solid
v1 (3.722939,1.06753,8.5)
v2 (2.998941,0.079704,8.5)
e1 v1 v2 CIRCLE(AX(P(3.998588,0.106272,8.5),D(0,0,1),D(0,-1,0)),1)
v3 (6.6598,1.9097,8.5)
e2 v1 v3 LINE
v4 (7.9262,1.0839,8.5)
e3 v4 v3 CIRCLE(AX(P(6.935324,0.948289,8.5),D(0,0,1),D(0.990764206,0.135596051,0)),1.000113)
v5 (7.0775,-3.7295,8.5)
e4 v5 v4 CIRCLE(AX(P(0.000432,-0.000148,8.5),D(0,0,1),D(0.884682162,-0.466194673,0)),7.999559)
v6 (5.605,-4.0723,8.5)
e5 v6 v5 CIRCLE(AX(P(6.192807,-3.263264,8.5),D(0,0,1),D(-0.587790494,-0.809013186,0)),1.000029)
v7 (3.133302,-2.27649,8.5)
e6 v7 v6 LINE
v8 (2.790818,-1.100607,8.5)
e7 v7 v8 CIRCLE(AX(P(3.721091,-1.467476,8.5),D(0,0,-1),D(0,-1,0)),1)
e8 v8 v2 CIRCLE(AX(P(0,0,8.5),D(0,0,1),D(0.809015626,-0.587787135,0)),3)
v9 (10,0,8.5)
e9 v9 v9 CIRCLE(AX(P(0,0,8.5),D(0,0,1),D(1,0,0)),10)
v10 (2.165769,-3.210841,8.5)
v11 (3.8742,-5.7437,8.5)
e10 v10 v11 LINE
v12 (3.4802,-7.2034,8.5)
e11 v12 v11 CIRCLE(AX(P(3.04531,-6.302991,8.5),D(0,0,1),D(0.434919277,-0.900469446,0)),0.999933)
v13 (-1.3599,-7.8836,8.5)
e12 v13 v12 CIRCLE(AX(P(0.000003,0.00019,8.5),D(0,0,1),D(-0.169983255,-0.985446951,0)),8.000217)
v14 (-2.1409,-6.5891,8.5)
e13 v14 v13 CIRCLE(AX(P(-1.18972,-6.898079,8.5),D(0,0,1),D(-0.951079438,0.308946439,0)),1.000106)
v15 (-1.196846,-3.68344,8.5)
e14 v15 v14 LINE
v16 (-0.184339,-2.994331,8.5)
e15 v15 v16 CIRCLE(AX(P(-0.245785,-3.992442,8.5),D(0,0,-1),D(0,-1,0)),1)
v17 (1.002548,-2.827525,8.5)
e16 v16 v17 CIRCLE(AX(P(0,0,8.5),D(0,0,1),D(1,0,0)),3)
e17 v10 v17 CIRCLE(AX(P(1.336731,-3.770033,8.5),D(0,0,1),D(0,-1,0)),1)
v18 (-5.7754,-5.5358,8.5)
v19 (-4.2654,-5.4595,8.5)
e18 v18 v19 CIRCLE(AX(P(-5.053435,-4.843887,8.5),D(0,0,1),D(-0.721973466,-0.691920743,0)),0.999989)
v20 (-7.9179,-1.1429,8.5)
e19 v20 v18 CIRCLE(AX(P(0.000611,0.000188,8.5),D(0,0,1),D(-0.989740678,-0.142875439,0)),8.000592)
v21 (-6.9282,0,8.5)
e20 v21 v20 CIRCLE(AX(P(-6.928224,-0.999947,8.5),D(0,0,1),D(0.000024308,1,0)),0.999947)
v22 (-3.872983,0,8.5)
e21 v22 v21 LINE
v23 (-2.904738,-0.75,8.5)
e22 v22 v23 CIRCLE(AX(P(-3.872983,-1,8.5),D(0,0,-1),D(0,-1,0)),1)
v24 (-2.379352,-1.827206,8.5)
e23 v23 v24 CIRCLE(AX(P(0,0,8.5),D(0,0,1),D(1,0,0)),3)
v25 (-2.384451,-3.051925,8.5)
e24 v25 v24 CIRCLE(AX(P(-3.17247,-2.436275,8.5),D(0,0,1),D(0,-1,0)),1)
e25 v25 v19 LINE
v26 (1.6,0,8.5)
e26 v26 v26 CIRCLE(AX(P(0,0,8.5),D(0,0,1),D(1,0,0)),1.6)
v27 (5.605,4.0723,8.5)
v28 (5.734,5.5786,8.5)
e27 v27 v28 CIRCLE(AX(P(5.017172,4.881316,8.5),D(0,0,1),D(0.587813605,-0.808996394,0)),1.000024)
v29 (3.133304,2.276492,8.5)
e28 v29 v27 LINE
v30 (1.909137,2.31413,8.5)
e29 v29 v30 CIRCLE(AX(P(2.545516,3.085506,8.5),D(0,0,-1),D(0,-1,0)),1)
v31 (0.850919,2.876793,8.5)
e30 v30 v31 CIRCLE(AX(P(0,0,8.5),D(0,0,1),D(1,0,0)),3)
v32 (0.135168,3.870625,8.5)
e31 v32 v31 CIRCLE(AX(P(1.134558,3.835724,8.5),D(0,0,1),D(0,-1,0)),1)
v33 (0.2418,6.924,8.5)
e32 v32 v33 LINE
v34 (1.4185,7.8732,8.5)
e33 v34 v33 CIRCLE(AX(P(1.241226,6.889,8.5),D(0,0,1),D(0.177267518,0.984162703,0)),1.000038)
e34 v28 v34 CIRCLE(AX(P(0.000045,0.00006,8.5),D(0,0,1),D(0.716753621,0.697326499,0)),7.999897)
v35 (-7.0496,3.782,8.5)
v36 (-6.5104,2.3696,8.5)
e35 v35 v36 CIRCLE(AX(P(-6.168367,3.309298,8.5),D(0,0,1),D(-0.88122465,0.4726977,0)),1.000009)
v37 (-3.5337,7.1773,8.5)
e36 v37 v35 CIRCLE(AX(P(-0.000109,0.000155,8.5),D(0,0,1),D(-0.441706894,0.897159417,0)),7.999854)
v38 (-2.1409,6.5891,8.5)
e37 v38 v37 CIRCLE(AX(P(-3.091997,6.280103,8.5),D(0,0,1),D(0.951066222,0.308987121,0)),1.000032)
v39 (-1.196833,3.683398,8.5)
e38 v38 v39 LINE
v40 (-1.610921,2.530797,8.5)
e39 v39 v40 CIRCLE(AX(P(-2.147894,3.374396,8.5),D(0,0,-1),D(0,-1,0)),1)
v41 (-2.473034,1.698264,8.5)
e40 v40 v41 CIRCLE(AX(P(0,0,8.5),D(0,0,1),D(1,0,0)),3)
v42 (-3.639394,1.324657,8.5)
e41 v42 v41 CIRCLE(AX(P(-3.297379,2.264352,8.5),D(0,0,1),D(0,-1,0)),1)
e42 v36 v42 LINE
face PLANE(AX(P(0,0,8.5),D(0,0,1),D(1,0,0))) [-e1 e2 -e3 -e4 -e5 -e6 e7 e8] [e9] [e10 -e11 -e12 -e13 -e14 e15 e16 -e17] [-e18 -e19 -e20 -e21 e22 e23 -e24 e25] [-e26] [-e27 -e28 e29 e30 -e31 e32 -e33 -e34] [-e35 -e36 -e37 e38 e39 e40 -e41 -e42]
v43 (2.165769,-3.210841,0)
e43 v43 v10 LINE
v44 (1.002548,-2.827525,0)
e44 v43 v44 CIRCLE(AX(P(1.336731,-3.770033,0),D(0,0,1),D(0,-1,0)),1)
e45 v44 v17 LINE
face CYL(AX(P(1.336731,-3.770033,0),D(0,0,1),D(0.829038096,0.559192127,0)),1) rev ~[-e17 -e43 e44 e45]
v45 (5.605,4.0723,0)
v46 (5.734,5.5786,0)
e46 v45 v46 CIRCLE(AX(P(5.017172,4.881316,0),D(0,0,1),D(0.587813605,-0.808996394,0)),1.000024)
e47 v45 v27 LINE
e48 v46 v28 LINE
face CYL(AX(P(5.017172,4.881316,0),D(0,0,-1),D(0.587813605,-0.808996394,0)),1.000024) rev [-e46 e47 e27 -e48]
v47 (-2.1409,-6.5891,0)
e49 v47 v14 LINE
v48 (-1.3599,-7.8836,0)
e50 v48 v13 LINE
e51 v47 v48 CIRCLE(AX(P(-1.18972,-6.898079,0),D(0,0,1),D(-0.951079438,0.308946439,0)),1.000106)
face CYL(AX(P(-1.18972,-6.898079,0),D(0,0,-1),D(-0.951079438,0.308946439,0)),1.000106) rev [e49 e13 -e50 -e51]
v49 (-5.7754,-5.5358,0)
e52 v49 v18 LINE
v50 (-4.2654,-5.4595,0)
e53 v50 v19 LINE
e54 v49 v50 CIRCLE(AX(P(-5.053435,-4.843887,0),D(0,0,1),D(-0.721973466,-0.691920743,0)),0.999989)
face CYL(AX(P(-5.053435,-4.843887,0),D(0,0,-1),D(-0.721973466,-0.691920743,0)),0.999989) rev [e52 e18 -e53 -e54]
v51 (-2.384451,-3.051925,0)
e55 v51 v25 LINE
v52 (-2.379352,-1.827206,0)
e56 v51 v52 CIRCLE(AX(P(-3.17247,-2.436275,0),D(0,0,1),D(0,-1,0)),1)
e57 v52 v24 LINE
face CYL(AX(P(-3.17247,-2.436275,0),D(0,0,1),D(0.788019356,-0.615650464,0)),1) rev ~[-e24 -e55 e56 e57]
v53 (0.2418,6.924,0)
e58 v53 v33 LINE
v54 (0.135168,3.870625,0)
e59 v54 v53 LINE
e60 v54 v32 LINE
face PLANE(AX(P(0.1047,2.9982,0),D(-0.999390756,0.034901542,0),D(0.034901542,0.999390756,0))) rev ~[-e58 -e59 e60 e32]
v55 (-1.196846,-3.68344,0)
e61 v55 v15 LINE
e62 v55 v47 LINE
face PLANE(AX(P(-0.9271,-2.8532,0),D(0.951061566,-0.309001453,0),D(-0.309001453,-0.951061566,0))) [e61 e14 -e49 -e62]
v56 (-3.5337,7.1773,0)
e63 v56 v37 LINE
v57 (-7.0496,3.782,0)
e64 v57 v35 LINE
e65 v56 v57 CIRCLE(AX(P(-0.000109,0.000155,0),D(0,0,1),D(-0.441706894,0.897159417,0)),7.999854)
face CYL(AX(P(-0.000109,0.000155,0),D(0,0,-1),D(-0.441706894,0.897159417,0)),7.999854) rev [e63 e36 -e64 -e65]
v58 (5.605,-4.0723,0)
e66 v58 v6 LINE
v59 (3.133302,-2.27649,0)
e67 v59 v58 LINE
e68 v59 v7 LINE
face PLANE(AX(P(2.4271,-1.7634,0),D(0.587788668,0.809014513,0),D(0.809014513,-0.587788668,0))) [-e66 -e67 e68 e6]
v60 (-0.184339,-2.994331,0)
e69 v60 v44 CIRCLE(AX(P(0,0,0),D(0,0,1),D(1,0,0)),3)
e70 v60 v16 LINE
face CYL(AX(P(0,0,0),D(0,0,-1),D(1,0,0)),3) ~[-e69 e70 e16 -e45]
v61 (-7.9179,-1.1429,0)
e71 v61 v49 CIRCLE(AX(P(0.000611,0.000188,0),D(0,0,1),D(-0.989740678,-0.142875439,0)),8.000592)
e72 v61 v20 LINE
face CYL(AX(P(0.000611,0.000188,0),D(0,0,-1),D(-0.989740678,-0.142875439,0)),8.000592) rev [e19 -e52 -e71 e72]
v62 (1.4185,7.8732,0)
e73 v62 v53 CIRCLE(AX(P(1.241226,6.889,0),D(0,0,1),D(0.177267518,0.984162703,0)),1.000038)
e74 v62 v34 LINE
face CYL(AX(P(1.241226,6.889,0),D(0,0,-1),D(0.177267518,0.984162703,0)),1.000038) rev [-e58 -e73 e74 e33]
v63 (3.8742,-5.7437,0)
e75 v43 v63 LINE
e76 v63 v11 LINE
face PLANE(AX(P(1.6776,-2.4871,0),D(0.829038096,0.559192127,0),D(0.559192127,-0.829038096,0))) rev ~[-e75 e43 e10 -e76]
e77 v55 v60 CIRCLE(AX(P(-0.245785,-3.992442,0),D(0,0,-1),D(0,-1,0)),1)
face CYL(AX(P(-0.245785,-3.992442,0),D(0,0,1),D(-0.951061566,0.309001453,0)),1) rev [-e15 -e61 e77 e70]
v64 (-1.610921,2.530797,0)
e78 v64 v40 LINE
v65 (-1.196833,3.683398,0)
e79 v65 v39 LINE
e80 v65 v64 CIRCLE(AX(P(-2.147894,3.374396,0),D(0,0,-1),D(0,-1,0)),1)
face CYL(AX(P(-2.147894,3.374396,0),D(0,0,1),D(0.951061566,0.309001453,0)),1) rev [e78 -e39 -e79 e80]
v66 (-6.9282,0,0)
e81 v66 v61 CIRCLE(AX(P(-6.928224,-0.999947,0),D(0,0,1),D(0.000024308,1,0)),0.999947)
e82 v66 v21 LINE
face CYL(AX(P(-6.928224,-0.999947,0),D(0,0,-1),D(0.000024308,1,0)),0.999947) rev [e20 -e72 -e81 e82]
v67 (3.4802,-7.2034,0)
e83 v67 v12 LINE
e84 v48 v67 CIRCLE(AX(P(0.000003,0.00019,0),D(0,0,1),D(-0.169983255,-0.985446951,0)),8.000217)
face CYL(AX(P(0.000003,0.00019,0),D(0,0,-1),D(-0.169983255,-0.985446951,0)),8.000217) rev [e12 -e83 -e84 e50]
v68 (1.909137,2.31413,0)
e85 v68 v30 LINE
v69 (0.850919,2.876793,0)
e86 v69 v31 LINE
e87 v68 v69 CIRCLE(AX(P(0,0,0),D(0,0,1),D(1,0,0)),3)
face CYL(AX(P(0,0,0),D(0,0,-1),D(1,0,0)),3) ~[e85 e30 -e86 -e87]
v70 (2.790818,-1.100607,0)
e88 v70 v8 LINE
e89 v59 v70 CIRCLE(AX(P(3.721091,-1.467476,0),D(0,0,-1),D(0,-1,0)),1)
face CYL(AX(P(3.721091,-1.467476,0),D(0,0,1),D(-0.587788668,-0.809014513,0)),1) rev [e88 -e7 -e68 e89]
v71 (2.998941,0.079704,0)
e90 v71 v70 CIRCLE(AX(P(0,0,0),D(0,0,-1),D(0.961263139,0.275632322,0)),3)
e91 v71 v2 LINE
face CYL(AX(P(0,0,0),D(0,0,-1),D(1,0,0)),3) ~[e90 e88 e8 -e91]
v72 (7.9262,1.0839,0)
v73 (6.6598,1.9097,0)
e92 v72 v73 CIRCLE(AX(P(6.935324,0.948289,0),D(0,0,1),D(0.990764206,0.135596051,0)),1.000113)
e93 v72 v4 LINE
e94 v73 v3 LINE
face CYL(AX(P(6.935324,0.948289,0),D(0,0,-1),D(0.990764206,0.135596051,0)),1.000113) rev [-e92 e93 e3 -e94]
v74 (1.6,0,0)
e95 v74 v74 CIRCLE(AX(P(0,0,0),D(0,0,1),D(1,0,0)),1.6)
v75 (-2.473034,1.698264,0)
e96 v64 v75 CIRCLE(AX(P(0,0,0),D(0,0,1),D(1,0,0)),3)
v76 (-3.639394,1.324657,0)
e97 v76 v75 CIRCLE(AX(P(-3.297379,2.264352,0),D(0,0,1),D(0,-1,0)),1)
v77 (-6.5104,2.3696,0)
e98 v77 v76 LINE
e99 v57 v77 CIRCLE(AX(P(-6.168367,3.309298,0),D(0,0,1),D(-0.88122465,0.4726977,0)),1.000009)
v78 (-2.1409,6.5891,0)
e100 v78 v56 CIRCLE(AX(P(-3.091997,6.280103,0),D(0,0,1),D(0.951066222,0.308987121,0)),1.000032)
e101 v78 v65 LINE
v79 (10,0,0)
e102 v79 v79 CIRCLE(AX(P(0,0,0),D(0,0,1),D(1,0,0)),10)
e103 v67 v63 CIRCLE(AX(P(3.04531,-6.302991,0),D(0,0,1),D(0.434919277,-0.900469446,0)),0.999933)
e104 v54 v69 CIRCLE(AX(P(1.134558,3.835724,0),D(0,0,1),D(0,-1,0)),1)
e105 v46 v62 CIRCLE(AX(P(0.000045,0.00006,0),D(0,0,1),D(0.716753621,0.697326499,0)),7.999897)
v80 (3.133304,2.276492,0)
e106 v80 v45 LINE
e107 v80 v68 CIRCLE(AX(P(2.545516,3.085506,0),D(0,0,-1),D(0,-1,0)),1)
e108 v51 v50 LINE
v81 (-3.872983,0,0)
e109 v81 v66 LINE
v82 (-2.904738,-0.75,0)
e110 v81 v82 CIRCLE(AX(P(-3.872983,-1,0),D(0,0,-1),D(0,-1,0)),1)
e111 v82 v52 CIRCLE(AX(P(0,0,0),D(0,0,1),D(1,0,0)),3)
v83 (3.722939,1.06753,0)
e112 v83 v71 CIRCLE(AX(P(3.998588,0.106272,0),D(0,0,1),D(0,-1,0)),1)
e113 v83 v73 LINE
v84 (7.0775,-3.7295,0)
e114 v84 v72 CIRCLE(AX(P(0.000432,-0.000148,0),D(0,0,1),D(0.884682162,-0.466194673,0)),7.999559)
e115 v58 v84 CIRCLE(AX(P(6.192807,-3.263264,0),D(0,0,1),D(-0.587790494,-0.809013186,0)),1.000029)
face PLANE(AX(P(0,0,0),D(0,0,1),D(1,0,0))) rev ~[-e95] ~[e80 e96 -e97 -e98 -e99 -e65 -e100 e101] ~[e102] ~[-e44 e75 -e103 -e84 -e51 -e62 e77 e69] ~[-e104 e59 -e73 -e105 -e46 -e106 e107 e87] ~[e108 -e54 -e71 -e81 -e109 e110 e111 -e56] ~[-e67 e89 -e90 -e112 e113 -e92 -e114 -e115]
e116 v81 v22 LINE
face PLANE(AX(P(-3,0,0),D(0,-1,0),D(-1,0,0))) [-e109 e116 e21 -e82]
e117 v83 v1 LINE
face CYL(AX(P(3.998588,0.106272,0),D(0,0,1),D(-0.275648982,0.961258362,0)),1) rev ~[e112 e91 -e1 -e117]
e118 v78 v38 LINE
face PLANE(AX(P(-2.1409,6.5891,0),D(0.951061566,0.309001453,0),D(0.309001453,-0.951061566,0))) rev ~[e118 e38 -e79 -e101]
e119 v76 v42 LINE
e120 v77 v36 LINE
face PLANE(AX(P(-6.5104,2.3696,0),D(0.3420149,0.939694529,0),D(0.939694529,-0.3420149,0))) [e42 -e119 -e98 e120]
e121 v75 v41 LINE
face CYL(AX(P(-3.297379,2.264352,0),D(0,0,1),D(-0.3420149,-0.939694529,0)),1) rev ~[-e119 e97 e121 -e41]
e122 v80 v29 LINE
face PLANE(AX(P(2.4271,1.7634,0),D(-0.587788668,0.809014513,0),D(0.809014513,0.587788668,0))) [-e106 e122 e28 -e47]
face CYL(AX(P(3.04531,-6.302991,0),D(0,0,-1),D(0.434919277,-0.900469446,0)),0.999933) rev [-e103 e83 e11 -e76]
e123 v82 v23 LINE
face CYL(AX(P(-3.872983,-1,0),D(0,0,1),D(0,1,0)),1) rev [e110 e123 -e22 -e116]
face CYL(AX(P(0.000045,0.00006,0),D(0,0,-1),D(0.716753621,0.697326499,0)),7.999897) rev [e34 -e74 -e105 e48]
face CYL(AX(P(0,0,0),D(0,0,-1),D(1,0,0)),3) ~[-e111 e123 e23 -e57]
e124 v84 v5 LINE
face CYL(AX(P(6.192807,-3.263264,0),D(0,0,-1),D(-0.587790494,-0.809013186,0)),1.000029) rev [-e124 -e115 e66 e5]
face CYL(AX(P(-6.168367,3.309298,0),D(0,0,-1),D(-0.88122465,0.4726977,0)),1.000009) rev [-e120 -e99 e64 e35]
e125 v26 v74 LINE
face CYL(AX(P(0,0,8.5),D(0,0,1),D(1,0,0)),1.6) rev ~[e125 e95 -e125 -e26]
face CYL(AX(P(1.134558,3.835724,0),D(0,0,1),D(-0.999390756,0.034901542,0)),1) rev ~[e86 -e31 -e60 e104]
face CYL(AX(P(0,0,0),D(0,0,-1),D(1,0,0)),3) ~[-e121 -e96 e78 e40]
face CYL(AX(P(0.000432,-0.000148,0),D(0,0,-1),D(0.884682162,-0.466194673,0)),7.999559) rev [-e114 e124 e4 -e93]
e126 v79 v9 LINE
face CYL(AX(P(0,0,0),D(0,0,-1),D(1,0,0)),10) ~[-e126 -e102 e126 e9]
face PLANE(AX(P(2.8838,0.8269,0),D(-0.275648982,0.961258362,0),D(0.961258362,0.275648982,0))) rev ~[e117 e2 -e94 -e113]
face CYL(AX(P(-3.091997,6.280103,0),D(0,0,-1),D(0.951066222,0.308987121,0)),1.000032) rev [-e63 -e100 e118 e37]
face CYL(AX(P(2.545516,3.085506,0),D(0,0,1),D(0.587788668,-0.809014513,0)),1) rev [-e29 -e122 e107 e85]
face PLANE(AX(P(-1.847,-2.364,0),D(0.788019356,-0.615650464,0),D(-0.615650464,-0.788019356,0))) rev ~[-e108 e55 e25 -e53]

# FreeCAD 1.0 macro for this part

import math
import FreeCAD as App
import Part
import Sketcher
Q = App.Units.Quantity


def edges_at(feature, points):
    """Names of the edges that pass closest to the given points."""
    edges = feature.Shape.Edges
    near = lambda p: min(range(len(edges)), key=lambda i: edges[i].distToShape(Part.Vertex(*p))[0])
    return sorted({f"Edge{near(p) + 1}" for p in points})

doc = App.newDocument("Part")
body = doc.addObject("PartDesign::Body", "Body")

sketch1 = body.newObject("Sketcher::SketchObject", "Sketch")
sketch1.AttachmentSupport = (doc.getObject("XY_Plane"), [""])
sketch1.MapMode = "FlatFace"
sketch1.addGeometry([
    Part.Circle(App.Vector(0, 0, 0), App.Vector(0, 0, 1), 10),
    Part.LineSegment(App.Vector(-2.8191, 1.0261, 0), App.Vector(-6.5104, 2.3696, 0)),
    Part.ArcOfCircle(Part.Circle(App.Vector(-6.1684, 3.3093, 0), App.Vector(0, 0, 1), 0.999979), math.radians(151.789663), math.radians(250.001229)),
    Part.ArcOfCircle(Part.Circle(App.Vector(0, 0, 0), App.Vector(0, 0, 1), 7.99996), math.radians(116.213049), math.radians(151.787139)),
    Part.ArcOfCircle(Part.Circle(App.Vector(-3.092, 6.2801, 0), App.Vector(0, 0, 1), 1.000036), math.radians(17.998304), math.radians(116.211457)),
    Part.LineSegment(App.Vector(-2.1409, 6.5891, 0), App.Vector(-0.9271, 2.8532, 0)),
    Part.ArcOfCircle(Part.Circle(App.Vector(0, 0, 0), App.Vector(0, 0, 1), 3), math.radians(108.000711), math.radians(159.999434)),
    Part.LineSegment(App.Vector(-6.9282, 0, 0), App.Vector(-3, 0, 0)),
    Part.ArcOfCircle(Part.Circle(App.Vector(0, 0, 0), App.Vector(0, 0, 1), 3), math.radians(180), math.radians(231.999386)),
    Part.LineSegment(App.Vector(-1.847, -2.364, 0), App.Vector(-4.2654, -5.4595, 0)),
    Part.ArcOfCircle(Part.Circle(App.Vector(-5.0534, -4.8438, 0), App.Vector(0, 0, 1), 1.000074), math.radians(-136.215428), math.radians(-38.002119)),
    Part.ArcOfCircle(Part.Circle(App.Vector(0, 0, 0), App.Vector(0, 0, 1), 8.000042), math.radians(-171.786438), math.radians(-136.213489)),
    Part.ArcOfCircle(Part.Circle(App.Vector(-6.9282, -1, 0), App.Vector(0, 0, 1), 1), math.radians(90), math.radians(188.215996)),
    Part.LineSegment(App.Vector(-2.1409, -6.5891, 0), App.Vector(-0.9271, -2.8532, 0)),
    Part.ArcOfCircle(Part.Circle(App.Vector(0, 0, 0), App.Vector(0, 0, 1), 3), math.radians(-108.000711), math.radians(-55.999527)),
    Part.LineSegment(App.Vector(1.6776, -2.4871, 0), App.Vector(3.8742, -5.7437, 0)),
    Part.ArcOfCircle(Part.Circle(App.Vector(3.0452, -6.3029, 0), App.Vector(0, 0, 1), 1.000063), math.radians(-64.216439), math.radians(34.001541)),
    Part.ArcOfCircle(Part.Circle(App.Vector(0, 0, 0), App.Vector(0, 0, 1), 8.000042), math.radians(-99.787055), math.radians(-64.21328)),
    Part.ArcOfCircle(Part.Circle(App.Vector(-1.1899, -6.8981, 0), App.Vector(0, 0, 1), 0.999941), math.radians(161.999925), math.radians(260.212726)),
    Part.LineSegment(App.Vector(5.605, -4.0723, 0), App.Vector(2.4271, -1.7634, 0)),
    Part.ArcOfCircle(Part.Circle(App.Vector(0, 0, 0), App.Vector(0, 0, 1), 3), math.radians(-36.000133), math.radians(15.9997)),
    Part.LineSegment(App.Vector(2.8838, 0.8269, 0), App.Vector(6.6598, 1.9097, 0)),
    Part.ArcOfCircle(Part.Circle(App.Vector(6.9355, 0.9484, 0), App.Vector(0, 0, 1), 0.999923), math.radians(7.788134), math.radians(106.002845)),
    Part.ArcOfCircle(Part.Circle(App.Vector(0, 0, 0), App.Vector(0, 0, 1), 7.99996), math.radians(-27.78706), math.radians(7.786842)),
    Part.ArcOfCircle(Part.Circle(App.Vector(6.1928, -3.2633, 0), App.Vector(0, 0, 1), 0.999995), math.radians(-126.001256), math.radians(-27.78736)),
    Part.LineSegment(App.Vector(5.605, 4.0723, 0), App.Vector(2.4271, 1.7634, 0)),
    Part.ArcOfCircle(Part.Circle(App.Vector(0, 0, 0), App.Vector(0, 0, 1), 3), math.radians(36.000133), math.radians(87.99999)),
    Part.LineSegment(App.Vector(0.1047, 2.9982, 0), App.Vector(0.2418, 6.924, 0)),
    Part.ArcOfCircle(Part.Circle(App.Vector(1.2412, 6.8891, 0), App.Vector(0, 0, 1), 0.999944), math.radians(79.786891), math.radians(177.99999)),
    Part.ArcOfCircle(Part.Circle(App.Vector(0, 0, 0), App.Vector(0, 0, 1), 7.99996), math.radians(44.212983), math.radians(79.786694)),
    Part.ArcOfCircle(Part.Circle(App.Vector(5.0172, 4.8813, 0), App.Vector(0, 0, 1), 0.999995), math.radians(-53.998744), math.radians(44.209959)),
    Part.ArcOfCircle(Part.Circle(App.Vector(0, 0, 0), App.Vector(0, 0, 1), 1.000036), math.radians(-36.001256), math.radians(15.997338)),
    Part.ArcOfCircle(Part.Circle(App.Vector(0, 0, 0), App.Vector(0, 0, 1), 1.000036), math.radians(-55.998459), math.radians(-36.001256)),
    Part.ArcOfCircle(Part.Circle(App.Vector(0, 0, 0), App.Vector(0, 0, 1), 0.999973), math.radians(-107.998304), math.radians(-55.998459)),
    Part.ArcOfCircle(Part.Circle(App.Vector(0, 0, 0), App.Vector(0, 0, 1), 1.000036), math.radians(-128.002119), math.radians(-107.998304)),
    Part.ArcOfCircle(Part.Circle(App.Vector(0, 0, 0), App.Vector(0, 0, 1), 1.000036), math.radians(180), math.radians(231.997881)),
    Part.ArcOfCircle(Part.Circle(App.Vector(0, 0, 0), App.Vector(0, 0, 1), 1), math.radians(160.001229), math.radians(180)),
    Part.ArcOfCircle(Part.Circle(App.Vector(0, 0, 0), App.Vector(0, 0, 1), 0.999973), math.radians(130.002181), math.radians(160.001229)),
    Part.ArcOfCircle(Part.Circle(App.Vector(-0.000677, 0.001556, 0), App.Vector(0, 0, 1), 0.998347), math.radians(107.988969), math.radians(130.029842)),
    Part.ArcOfCircle(Part.Circle(App.Vector(0, 0, 0), App.Vector(0, 0, 1), 1.000036), math.radians(55.998459), math.radians(107.998304)),
    Part.ArcOfCircle(Part.Circle(App.Vector(0, 0, 0), App.Vector(0, 0, 1), 1.000036), math.radians(36.001256), math.radians(55.998459)),
    Part.ArcOfCircle(Part.Circle(App.Vector(0.000973, 0.000374, 0), App.Vector(0, 0, 1), 0.998988), math.radians(15.992125), math.radians(36.016736)),
], False)
sketch1.addConstraint([
    Sketcher.Constraint("Coincident", 1, 2, 2, 2),
    Sketcher.Constraint("Coincident", 2, 1, 3, 2),
    Sketcher.Constraint("Coincident", 3, 1, 4, 2),
    Sketcher.Constraint("Coincident", 4, 1, 5, 1),
    Sketcher.Constraint("Coincident", 5, 2, 6, 1),
    Sketcher.Constraint("Coincident", 6, 2, 1, 1),
    Sketcher.Constraint("Coincident", 7, 2, 8, 1),
    Sketcher.Constraint("Coincident", 8, 2, 9, 1),
    Sketcher.Constraint("Coincident", 9, 2, 10, 2),
    Sketcher.Constraint("Coincident", 10, 1, 11, 2),
    Sketcher.Constraint("Coincident", 11, 1, 12, 2),
    Sketcher.Constraint("Coincident", 12, 1, 7, 1),
    Sketcher.Constraint("Coincident", 13, 2, 14, 1),
    Sketcher.Constraint("Coincident", 14, 2, 15, 1),
    Sketcher.Constraint("Coincident", 15, 2, 16, 2),
    Sketcher.Constraint("Coincident", 16, 1, 17, 2),
    Sketcher.Constraint("Coincident", 17, 1, 18, 2),
    Sketcher.Constraint("Coincident", 18, 1, 13, 1),
    Sketcher.Constraint("Coincident", 19, 2, 20, 1),
    Sketcher.Constraint("Coincident", 20, 2, 21, 1),
    Sketcher.Constraint("Coincident", 21, 2, 22, 2),
    Sketcher.Constraint("Coincident", 22, 1, 23, 2),
    Sketcher.Constraint("Coincident", 23, 1, 24, 2),
    Sketcher.Constraint("Coincident", 24, 1, 19, 1),
    Sketcher.Constraint("Coincident", 25, 2, 26, 1),
    Sketcher.Constraint("Coincident", 26, 2, 27, 1),
    Sketcher.Constraint("Coincident", 27, 2, 28, 2),
    Sketcher.Constraint("Coincident", 28, 1, 29, 2),
    Sketcher.Constraint("Coincident", 29, 1, 30, 2),
    Sketcher.Constraint("Coincident", 30, 1, 25, 1),
    Sketcher.Constraint("Coincident", 31, 1, 32, 2),
    Sketcher.Constraint("Coincident", 32, 1, 33, 2),
    Sketcher.Constraint("Coincident", 33, 1, 34, 2),
    Sketcher.Constraint("Coincident", 34, 1, 35, 2),
    Sketcher.Constraint("Coincident", 35, 1, 36, 2),
    Sketcher.Constraint("Coincident", 36, 1, 37, 2),
    Sketcher.Constraint("Coincident", 37, 1, 38, 2),
    Sketcher.Constraint("Coincident", 38, 1, 39, 2),
    Sketcher.Constraint("Coincident", 39, 1, 40, 2),
    Sketcher.Constraint("Coincident", 40, 1, 41, 2),
    Sketcher.Constraint("Coincident", 41, 1, 31, 2),
    Sketcher.Constraint("Horizontal", 7),
    Sketcher.Constraint("Coincident", 0, 3, -1, 1),
    Sketcher.Constraint("Coincident", 3, 3, -1, 1),
    Sketcher.Constraint("Coincident", 6, 3, -1, 1),
    Sketcher.Constraint("Coincident", 8, 3, -1, 1),
    Sketcher.Constraint("Coincident", 11, 3, -1, 1),
    Sketcher.Constraint("Coincident", 14, 3, -1, 1),
    Sketcher.Constraint("Coincident", 17, 3, -1, 1),
    Sketcher.Constraint("Coincident", 20, 3, -1, 1),
    Sketcher.Constraint("Coincident", 23, 3, -1, 1),
    Sketcher.Constraint("Coincident", 26, 3, -1, 1),
    Sketcher.Constraint("Coincident", 29, 3, -1, 1),
    Sketcher.Constraint("Coincident", 31, 3, -1, 1),
    Sketcher.Constraint("Coincident", 32, 3, -1, 1),
    Sketcher.Constraint("Coincident", 33, 3, -1, 1),
    Sketcher.Constraint("Coincident", 34, 3, -1, 1),
    Sketcher.Constraint("Coincident", 35, 3, -1, 1),
    Sketcher.Constraint("Coincident", 36, 3, -1, 1),
    Sketcher.Constraint("Coincident", 37, 3, -1, 1),
    Sketcher.Constraint("Coincident", 39, 3, -1, 1),
    Sketcher.Constraint("Coincident", 40, 3, -1, 1),
    Sketcher.Constraint("PointOnObject", 7, 2, -1),
    Sketcher.Constraint("PointOnObject", 35, 1, -1),
    Sketcher.Constraint("Diameter", 0, Q("20 mm")),
    Sketcher.Constraint("Radius", 2, Q("1 mm")),
    Sketcher.Constraint("Radius", 3, Q("8 mm")),
    Sketcher.Constraint("Radius", 4, Q("1 mm")),
    Sketcher.Constraint("Radius", 6, Q("3 mm")),
    Sketcher.Constraint("Radius", 8, Q("3 mm")),
    Sketcher.Constraint("Radius", 10, Q("1 mm")),
    Sketcher.Constraint("Radius", 11, Q("8 mm")),
    Sketcher.Constraint("Radius", 12, Q("1 mm")),
    Sketcher.Constraint("Radius", 14, Q("3 mm")),
    Sketcher.Constraint("Radius", 16, Q("1 mm")),
    Sketcher.Constraint("Radius", 17, Q("8 mm")),
    Sketcher.Constraint("Radius", 18, Q("1 mm")),
    Sketcher.Constraint("Radius", 20, Q("3 mm")),
    Sketcher.Constraint("Radius", 22, Q("1 mm")),
    Sketcher.Constraint("Radius", 23, Q("8 mm")),
    Sketcher.Constraint("Radius", 24, Q("1 mm")),
    Sketcher.Constraint("Radius", 26, Q("3 mm")),
    Sketcher.Constraint("Radius", 28, Q("1 mm")),
    Sketcher.Constraint("Radius", 29, Q("8 mm")),
    Sketcher.Constraint("Radius", 30, Q("1 mm")),
    Sketcher.Constraint("Radius", 31, Q("1 mm")),
    Sketcher.Constraint("Radius", 39, Q("1 mm")),
    Sketcher.Constraint("Radius", 41, Q("0.999 mm")),
    Sketcher.Constraint("Radius", 38, Q("0.9983 mm")),
    Sketcher.Constraint("DistanceY", -1, 1, 4, 3, Q("6.28 mm")),
    Sketcher.Constraint("DistanceX", 18, 3, -1, 1, Q("1.19 mm")),
    Sketcher.Constraint("DistanceX", 17, 1, -1, 1, Q("1.36 mm")),
    Sketcher.Constraint("Distance", 19, Q("3.928 mm")),
    Sketcher.Constraint("Distance", 25, Q("3.928 mm")),
    Sketcher.Constraint("DistanceX", 7, 1, 7, 2, Q("3.9282 mm")),
    Sketcher.Constraint("DistanceY", 16, 3, -1, 1, Q("6.303 mm")),
    Sketcher.Constraint("DistanceY", -1, 1, 28, 3, Q("6.889 mm")),
    Sketcher.Constraint("DistanceY", -1, 1, 2, 1, Q("3.782 mm")),
    Sketcher.Constraint("DistanceX", 4, 1, -1, 1, Q("2.141 mm")),
    Sketcher.Constraint("DistanceX", 5, 2, -1, 1, Q("0.927 mm")),
    Sketcher.Constraint("DistanceX", 6, 2, -1, 1, Q("2.819 mm")),
    Sketcher.Constraint("DistanceX", 8, 2, -1, 1, Q("1.847 mm")),
    Sketcher.Constraint("DistanceX", 11, 1, -1, 1, Q("7.918 mm")),
    Sketcher.Constraint("DistanceX", 13, 2, -1, 1, Q("0.927 mm")),
    Sketcher.Constraint("DistanceY", 14, 2, -1, 1, Q("2.487 mm")),
    Sketcher.Constraint("DistanceX", 18, 1, -1, 1, Q("2.141 mm")),
    Sketcher.Constraint("DistanceX", -1, 1, 19, 2, Q("2.427 mm")),
    Sketcher.Constraint("DistanceY", -1, 1, 20, 2, Q("0.827 mm")),
    Sketcher.Constraint("DistanceY", -1, 1, 22, 1, Q("1.084 mm")),
    Sketcher.Constraint("DistanceX", -1, 1, 24, 1, Q("5.605 mm")),
    Sketcher.Constraint("DistanceX", -1, 1, 25, 2, Q("2.427 mm")),
    Sketcher.Constraint("DistanceY", -1, 1, 27, 2, Q("6.924 mm")),
    Sketcher.Constraint("DistanceX", -1, 1, 29, 1, Q("5.734 mm")),
    Sketcher.Constraint("DistanceX", -1, 1, 30, 1, Q("5.605 mm")),
    Sketcher.Constraint("DistanceX", -1, 1, 31, 1, Q("0.809 mm")),
    Sketcher.Constraint("DistanceY", 32, 1, -1, 1, Q("0.829 mm")),
    Sketcher.Constraint("DistanceX", 33, 1, -1, 1, Q("0.309 mm")),
    Sketcher.Constraint("DistanceY", 34, 1, -1, 1, Q("0.788 mm")),
    Sketcher.Constraint("DistanceY", -1, 1, 36, 1, Q("0.342 mm")),
    Sketcher.Constraint("DistanceY", -1, 1, 37, 1, Q("0.766 mm")),
    Sketcher.Constraint("DistanceX", 38, 1, -1, 1, Q("0.309 mm")),
    Sketcher.Constraint("DistanceY", -1, 1, 39, 1, Q("0.829 mm")),
    Sketcher.Constraint("DistanceX", -1, 1, 40, 1, Q("0.809 mm")),
    Sketcher.Constraint("Distance", 1, Q("3.9282 mm")),
    Sketcher.Constraint("Distance", 9, Q("3.9282 mm")),
    Sketcher.Constraint("Distance", 15, Q("3.9282 mm")),
    Sketcher.Constraint("Distance", 21, Q("3.9282 mm")),
    Sketcher.Constraint("DistanceX", 2, 3, -1, 1, Q("6.1684 mm")),
    Sketcher.Constraint("DistanceX", 10, 3, -1, 1, Q("5.0534 mm")),
    Sketcher.Constraint("DistanceX", -1, 1, 22, 3, Q("6.9355 mm")),
    Sketcher.Constraint("DistanceX", 3, 1, -1, 1, Q("3.5337 mm")),
    Sketcher.Constraint("DistanceX", 10, 1, -1, 1, Q("5.7754 mm")),
    Sketcher.Constraint("DistanceX", -1, 1, 16, 1, Q("3.4802 mm")),
    Sketcher.Constraint("DistanceX", -1, 1, 23, 1, Q("7.0775 mm")),
    Sketcher.Constraint("DistanceX", -1, 1, 26, 2, Q("0.1047 mm")),
    Sketcher.Constraint("DistanceX", -1, 1, 28, 1, Q("1.4185 mm")),
    Sketcher.Constraint("DistanceX", -1, 1, 41, 1, Q("0.9613 mm")),
])
pad1 = body.newObject("PartDesign::Pad", "Pad")
pad1.Profile = sketch1
pad1.Length = 8.5
doc.recompute()

fillet = body.newObject("PartDesign::Fillet", "Fillet")
fillet.Base = (pad1, edges_at(pad1, [
    (-0.927, -2.853, 4.25),
    (2.884, 0.827, 4.25),
    (2.427, -1.763, 4.25),
    (0.105, 2.998, 4.25),
    (2.427, 1.763, 4.25),
    (-0.927, 2.853, 4.25),
    (-2.819, 1.026, 4.25),
    (-3, 0, 4.25),
    (-1.847, -2.364, 4.25),
    (1.678, -2.487, 4.25),
]))
fillet.Radius = 1

sketch2 = body.newObject("Sketcher::SketchObject", "Sketch001")
sketch2.AttachmentSupport = (doc.getObject("XY_Plane"), [""])
sketch2.MapMode = "FlatFace"
sketch2.AttachmentOffset = App.Placement(App.Vector(0, 0, 8.5), App.Rotation())
sketch2.addGeometry(Part.Circle(App.Vector(0, 0, 0), App.Vector(0, 0, 1), 1.6), False)
sketch2.addConstraint([
    Sketcher.Constraint("Coincident", 0, 3, -1, 1),
    Sketcher.Constraint("Diameter", 0, Q("3.2 mm")),
])
pocket1 = body.newObject("PartDesign::Pocket", "Pocket")
pocket1.Profile = sketch2
pocket1.Length = 10

doc.recompute()
